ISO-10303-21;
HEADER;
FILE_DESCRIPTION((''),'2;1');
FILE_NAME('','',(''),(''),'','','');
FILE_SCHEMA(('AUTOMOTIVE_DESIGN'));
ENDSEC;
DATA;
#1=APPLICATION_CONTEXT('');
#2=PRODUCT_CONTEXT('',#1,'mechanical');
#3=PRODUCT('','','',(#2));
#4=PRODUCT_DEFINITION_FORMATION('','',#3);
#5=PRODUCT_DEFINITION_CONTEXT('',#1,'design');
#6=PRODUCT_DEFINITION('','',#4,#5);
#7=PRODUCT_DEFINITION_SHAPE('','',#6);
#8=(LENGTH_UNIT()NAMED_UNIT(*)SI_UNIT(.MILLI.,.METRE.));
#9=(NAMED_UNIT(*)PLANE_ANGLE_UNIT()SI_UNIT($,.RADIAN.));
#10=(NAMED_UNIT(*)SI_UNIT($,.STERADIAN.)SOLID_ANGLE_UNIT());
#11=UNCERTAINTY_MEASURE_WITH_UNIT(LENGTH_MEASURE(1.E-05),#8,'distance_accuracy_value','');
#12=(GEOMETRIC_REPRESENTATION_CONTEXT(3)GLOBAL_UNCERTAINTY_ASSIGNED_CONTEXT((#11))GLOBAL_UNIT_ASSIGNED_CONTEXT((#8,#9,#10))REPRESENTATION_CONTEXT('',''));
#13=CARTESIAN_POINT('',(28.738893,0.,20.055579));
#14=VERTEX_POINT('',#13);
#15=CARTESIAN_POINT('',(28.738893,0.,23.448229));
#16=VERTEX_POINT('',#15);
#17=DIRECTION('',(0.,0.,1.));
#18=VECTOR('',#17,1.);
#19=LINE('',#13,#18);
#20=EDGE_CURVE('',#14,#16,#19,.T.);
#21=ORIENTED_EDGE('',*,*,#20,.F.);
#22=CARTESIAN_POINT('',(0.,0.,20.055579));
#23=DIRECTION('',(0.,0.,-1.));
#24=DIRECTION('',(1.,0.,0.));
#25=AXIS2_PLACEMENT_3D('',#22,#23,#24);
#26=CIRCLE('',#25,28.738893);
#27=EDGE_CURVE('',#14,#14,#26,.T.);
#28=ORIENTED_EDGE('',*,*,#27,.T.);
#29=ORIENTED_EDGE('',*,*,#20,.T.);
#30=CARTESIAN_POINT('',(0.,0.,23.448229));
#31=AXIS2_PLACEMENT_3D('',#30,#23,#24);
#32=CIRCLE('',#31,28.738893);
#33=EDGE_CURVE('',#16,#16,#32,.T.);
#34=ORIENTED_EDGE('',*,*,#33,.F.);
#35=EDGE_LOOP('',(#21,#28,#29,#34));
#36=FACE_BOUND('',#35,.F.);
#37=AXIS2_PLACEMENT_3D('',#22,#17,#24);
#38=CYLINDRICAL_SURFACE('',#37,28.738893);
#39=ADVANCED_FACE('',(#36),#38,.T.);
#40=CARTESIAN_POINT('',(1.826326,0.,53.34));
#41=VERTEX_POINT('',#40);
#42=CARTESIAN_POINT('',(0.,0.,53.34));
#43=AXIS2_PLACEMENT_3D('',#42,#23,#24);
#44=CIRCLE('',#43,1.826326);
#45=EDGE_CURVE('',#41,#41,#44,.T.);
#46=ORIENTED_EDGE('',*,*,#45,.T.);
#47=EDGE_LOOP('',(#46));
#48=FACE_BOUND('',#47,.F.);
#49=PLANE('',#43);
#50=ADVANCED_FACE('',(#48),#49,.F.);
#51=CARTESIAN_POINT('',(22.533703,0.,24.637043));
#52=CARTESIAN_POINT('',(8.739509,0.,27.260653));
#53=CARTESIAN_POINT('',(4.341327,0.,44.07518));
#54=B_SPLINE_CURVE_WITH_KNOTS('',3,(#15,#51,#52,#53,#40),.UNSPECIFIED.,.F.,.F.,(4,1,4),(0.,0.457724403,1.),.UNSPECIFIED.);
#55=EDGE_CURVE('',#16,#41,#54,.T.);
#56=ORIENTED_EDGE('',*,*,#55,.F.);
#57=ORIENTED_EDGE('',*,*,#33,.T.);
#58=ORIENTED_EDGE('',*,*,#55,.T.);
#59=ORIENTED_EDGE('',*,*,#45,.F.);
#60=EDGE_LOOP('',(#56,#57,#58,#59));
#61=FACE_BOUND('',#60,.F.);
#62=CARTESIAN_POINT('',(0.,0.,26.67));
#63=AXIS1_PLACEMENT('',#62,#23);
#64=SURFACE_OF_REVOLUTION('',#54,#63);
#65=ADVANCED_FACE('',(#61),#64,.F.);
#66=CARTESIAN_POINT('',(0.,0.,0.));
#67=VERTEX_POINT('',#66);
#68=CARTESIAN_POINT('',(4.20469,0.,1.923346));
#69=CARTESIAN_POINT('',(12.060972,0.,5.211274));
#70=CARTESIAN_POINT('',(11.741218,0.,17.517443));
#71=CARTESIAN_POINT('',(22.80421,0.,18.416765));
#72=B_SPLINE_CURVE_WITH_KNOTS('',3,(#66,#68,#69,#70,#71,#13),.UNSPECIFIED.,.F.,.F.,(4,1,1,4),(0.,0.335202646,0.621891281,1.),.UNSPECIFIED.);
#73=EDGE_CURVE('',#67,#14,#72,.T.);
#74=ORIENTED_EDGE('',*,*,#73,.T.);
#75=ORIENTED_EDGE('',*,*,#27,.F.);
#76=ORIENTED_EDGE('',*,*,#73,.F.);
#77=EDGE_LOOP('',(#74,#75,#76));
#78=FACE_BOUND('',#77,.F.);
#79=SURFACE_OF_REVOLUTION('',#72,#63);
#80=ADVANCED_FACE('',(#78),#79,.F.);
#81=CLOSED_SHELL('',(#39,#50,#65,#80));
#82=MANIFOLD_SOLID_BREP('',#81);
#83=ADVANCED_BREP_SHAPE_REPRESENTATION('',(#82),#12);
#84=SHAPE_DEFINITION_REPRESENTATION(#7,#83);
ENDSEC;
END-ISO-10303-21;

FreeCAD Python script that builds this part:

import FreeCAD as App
import Part
import Sketcher
from FreeCAD import Vector

doc = App.newDocument("Part")
params = doc.addObject("Spreadsheet::Sheet", "Params")
for row, (alias, value) in enumerate([
    ("revolution_angle", "360 deg"),
], start=1):
    params.set(f"A{row}", alias)
    params.set(f"B{row}", "=" + value)
    params.setAlias(f"B{row}", alias)

body = doc.addObject("PartDesign::Body", "Body")

sketch1 = body.newObject("Sketcher::SketchObject", "Sketch")
sketch1.AttachmentSupport = (doc.getObject("XZ_Plane"), [""])
sketch1.MapMode = "FlatFace"
sketch1.addGeometry([
    Part.LineSegment(Vector(0, 53.34, 0), Vector(0, 0, 0)),
    Part.BSplineCurve([Vector(0, 0, 0), Vector(4.20469, 1.923346, 0), Vector(12.060972, 5.211274, 0), Vector(11.741218, 17.517443, 0), Vector(22.80421, 18.416765, 0), Vector(28.738893, 20.055579, 0)], [4, 1, 1, 4], [0, 0.335202646, 0.621891281, 1], False, 3, [1, 1, 1, 1, 1, 1], False),
    Part.LineSegment(Vector(28.738893, 20.055579, 0), Vector(28.738893, 23.448229, 0)),
    Part.BSplineCurve([Vector(28.738893, 23.448229, 0), Vector(22.533703, 24.637043, 0), Vector(8.739509, 27.260653, 0), Vector(4.341327, 44.07518, 0), Vector(1.826326, 53.34, 0)], [4, 1, 4], [0, 0.457724403, 1], False, 3, [1, 1, 1, 1, 1], False),
    Part.LineSegment(Vector(1.826326, 53.34, 0), Vector(0, 53.34, 0)),
], False)
sketch1.addConstraint([
    Sketcher.Constraint("Block", 1),
    Sketcher.Constraint("Block", 3),
    Sketcher.Constraint("Coincident", 0, 2, 1, 1),
    Sketcher.Constraint("Coincident", 1, 2, 2, 1),
    Sketcher.Constraint("Coincident", 2, 2, 3, 1),
    Sketcher.Constraint("Coincident", 3, 2, 4, 1),
    Sketcher.Constraint("Coincident", 4, 2, 0, 1),
    Sketcher.Constraint("Vertical", 0),
    Sketcher.Constraint("Horizontal", 4),
])
revolution = body.newObject("PartDesign::Revolution", "Revolution")
revolution.Profile = sketch1
revolution.ReferenceAxis = (sketch1, ["V_Axis"])
revolution.setExpression("Angle", "Params.revolution_angle")

doc.recompute()
